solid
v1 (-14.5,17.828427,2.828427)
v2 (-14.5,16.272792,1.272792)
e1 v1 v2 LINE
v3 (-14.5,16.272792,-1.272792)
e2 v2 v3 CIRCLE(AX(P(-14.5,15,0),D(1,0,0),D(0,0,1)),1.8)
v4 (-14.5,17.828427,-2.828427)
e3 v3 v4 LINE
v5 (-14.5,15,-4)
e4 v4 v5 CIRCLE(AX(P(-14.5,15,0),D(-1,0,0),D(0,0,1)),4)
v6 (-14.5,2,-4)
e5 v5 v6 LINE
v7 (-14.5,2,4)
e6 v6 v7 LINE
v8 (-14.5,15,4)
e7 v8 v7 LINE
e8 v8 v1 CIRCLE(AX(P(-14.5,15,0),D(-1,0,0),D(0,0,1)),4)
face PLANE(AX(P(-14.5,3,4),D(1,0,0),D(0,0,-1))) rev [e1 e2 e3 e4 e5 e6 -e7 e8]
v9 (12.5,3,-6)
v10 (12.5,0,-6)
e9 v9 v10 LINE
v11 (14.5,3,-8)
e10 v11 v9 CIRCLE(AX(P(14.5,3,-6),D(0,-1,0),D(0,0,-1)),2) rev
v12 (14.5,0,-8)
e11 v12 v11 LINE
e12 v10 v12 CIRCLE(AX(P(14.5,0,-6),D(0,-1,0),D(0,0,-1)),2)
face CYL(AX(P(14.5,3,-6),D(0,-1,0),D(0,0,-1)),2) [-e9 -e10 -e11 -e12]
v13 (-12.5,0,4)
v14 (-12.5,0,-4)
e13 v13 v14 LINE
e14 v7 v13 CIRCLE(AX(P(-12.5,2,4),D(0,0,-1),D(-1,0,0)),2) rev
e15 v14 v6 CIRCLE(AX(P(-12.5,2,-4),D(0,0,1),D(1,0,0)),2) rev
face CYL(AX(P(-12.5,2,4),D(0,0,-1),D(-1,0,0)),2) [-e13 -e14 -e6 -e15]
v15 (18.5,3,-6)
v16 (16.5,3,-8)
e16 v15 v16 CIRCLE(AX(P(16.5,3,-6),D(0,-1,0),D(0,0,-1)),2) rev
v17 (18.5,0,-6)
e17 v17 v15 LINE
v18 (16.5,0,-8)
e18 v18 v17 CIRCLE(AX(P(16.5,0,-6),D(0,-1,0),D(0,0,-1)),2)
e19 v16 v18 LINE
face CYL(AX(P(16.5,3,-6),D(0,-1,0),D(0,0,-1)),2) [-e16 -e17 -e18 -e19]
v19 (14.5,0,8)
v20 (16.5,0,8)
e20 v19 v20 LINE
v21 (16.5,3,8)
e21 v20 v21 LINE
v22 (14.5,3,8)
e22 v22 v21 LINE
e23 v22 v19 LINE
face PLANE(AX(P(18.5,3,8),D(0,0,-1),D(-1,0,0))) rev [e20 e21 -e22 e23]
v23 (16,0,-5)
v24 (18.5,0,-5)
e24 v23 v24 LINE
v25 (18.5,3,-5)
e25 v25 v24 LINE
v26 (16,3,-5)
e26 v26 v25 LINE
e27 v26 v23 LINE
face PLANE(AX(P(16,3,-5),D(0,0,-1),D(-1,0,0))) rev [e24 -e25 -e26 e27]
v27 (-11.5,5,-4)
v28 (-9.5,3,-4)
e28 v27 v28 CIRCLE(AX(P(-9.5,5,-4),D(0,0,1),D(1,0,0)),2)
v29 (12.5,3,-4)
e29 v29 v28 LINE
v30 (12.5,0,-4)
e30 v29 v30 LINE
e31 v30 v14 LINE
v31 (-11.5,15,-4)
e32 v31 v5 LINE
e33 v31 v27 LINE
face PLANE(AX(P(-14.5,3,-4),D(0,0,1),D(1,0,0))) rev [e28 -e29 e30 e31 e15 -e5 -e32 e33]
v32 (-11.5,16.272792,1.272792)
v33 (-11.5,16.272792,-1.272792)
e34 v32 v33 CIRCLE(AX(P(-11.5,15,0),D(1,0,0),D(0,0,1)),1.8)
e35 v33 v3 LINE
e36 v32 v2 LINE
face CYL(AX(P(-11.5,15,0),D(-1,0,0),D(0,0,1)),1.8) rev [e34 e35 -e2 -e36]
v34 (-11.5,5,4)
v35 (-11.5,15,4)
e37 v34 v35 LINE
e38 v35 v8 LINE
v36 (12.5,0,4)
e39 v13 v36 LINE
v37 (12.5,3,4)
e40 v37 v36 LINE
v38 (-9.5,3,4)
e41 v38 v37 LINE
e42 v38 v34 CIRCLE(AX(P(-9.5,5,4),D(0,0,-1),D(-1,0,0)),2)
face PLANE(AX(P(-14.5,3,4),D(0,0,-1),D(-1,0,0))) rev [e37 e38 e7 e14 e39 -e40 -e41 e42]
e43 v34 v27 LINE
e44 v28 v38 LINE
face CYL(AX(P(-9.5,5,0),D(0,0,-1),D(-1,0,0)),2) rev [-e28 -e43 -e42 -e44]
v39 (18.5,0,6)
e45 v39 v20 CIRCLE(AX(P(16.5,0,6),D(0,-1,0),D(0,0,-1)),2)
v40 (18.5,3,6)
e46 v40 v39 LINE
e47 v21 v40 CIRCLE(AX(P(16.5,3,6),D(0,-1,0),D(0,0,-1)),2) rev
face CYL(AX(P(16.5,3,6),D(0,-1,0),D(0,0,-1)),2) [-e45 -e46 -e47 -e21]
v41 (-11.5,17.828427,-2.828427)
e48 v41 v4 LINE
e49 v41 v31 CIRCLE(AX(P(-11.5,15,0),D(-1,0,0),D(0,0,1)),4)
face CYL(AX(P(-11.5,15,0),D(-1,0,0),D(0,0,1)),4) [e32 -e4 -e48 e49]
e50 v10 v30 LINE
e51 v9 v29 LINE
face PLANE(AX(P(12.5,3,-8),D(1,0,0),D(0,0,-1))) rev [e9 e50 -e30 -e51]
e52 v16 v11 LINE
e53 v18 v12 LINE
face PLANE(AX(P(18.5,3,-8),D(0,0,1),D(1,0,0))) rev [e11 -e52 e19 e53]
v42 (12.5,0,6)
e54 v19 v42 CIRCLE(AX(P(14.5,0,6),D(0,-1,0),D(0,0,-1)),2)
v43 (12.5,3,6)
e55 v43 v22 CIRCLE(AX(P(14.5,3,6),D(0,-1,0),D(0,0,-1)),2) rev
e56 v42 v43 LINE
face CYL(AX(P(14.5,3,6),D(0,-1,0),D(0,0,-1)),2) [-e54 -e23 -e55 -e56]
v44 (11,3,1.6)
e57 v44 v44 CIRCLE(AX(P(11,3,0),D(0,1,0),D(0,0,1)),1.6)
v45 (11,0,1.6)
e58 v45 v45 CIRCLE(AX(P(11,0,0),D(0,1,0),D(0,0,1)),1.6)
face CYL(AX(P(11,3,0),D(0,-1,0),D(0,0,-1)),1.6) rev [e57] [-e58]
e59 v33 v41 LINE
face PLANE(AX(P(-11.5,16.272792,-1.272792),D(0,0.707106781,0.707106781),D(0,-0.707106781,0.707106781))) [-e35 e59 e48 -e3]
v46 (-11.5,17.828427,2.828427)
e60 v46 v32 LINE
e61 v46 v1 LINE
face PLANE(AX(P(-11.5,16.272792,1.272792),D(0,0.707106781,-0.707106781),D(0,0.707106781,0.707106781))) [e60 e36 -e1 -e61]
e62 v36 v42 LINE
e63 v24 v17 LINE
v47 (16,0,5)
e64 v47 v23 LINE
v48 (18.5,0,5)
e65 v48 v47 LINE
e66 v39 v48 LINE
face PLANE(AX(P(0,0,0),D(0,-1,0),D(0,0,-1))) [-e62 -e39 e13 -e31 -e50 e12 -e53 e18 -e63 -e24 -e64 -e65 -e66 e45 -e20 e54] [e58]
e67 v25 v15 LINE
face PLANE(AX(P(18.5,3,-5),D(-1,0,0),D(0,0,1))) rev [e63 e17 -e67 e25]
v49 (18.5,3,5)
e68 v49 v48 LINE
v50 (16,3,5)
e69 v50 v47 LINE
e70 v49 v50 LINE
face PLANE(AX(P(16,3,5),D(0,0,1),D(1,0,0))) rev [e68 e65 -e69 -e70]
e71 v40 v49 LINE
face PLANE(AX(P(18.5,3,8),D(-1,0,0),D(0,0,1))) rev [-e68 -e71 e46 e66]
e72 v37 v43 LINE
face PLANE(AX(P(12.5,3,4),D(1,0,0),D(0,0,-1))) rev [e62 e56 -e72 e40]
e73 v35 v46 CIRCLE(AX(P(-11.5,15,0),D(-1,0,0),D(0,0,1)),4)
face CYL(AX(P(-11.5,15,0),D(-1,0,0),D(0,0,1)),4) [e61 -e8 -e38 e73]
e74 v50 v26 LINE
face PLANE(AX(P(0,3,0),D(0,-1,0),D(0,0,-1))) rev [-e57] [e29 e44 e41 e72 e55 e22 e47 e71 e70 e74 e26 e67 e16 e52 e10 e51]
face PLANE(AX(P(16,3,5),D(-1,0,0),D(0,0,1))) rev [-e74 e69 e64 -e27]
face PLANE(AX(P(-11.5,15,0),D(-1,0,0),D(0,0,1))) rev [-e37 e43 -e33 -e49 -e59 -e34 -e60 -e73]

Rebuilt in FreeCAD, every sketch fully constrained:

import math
import FreeCAD as App
import Part
import Sketcher
Q = App.Units.Quantity


def edges_at(feature, points):
    """Names of the edges that pass closest to the given points."""
    edges = feature.Shape.Edges
    near = lambda p: min(range(len(edges)), key=lambda i: edges[i].distToShape(Part.Vertex(*p))[0])
    return sorted({f"Edge{near(p) + 1}" for p in points})

doc = App.newDocument("Part")
body = doc.addObject("PartDesign::Body", "Body")

# Sketch on XZ plane
sketch1 = body.newObject("Sketcher::SketchObject", "Sketch")
sketch1.AttachmentSupport = (doc.getObject("XZ_Plane"), [""])
sketch1.MapMode = "FlatFace"
sketch1.addGeometry([
    Part.LineSegment(App.Vector(-14.5, -4, 0), App.Vector(-14.5, 4, 0)),  # 0
    Part.LineSegment(App.Vector(-14.5, 4, 0), App.Vector(12.5, 4, 0)),  # 1
    Part.LineSegment(App.Vector(12.5, 4, 0), App.Vector(12.5, 8, 0)),  # 2
    Part.LineSegment(App.Vector(12.5, 8, 0), App.Vector(18.5, 8, 0)),  # 3
    Part.LineSegment(App.Vector(18.5, 8, 0), App.Vector(18.5, 5, 0)),  # 4
    Part.LineSegment(App.Vector(18.5, 5, 0), App.Vector(16, 5, 0)),  # 5
    Part.LineSegment(App.Vector(16, 5, 0), App.Vector(16, -5, 0)),  # 6
    Part.LineSegment(App.Vector(16, -5, 0), App.Vector(18.5, -5, 0)),  # 7
    Part.LineSegment(App.Vector(18.5, -5, 0), App.Vector(18.5, -8, 0)),  # 8
    Part.LineSegment(App.Vector(18.5, -8, 0), App.Vector(12.5, -8, 0)),  # 9
    Part.LineSegment(App.Vector(12.5, -8, 0), App.Vector(12.5, -4, 0)),  # 10
    Part.LineSegment(App.Vector(12.5, -4, 0), App.Vector(-14.5, -4, 0)),  # 11
    Part.Circle(App.Vector(11, 0, 0), App.Vector(0, 0, 1), 1.6),  # 12
], False)
sketch1.addConstraint([
    Sketcher.Constraint("Coincident", 0, 2, 1, 1),
    Sketcher.Constraint("Coincident", 1, 2, 2, 1),
    Sketcher.Constraint("Coincident", 2, 2, 3, 1),
    Sketcher.Constraint("Coincident", 3, 2, 4, 1),
    Sketcher.Constraint("Coincident", 4, 2, 5, 1),
    Sketcher.Constraint("Coincident", 5, 2, 6, 1),
    Sketcher.Constraint("Coincident", 6, 2, 7, 1),
    Sketcher.Constraint("Coincident", 7, 2, 8, 1),
    Sketcher.Constraint("Coincident", 8, 2, 9, 1),
    Sketcher.Constraint("Coincident", 9, 2, 10, 1),
    Sketcher.Constraint("Coincident", 10, 2, 11, 1),
    Sketcher.Constraint("Coincident", 11, 2, 0, 1),
    Sketcher.Constraint("Vertical", 0),
    Sketcher.Constraint("Horizontal", 1),
    Sketcher.Constraint("Vertical", 2),
    Sketcher.Constraint("Horizontal", 3),
    Sketcher.Constraint("Vertical", 4),
    Sketcher.Constraint("Horizontal", 5),
    Sketcher.Constraint("Vertical", 6),
    Sketcher.Constraint("Horizontal", 7),
    Sketcher.Constraint("Vertical", 8),
    Sketcher.Constraint("Horizontal", 9),
    Sketcher.Constraint("Vertical", 10),
    Sketcher.Constraint("Horizontal", 11),
    Sketcher.Constraint("Symmetric", 4, 2, 7, 2, -1),
    Sketcher.Constraint("Symmetric", 2, 2, 9, 2, -1),
    Sketcher.Constraint("PointOnObject", 12, 3, -1),
    Sketcher.Constraint("Equal", 2, 10),
    Sketcher.Constraint("Diameter", 12, Q("3.2 mm")),
    Sketcher.Constraint("DistanceX", 1, 1, 1, 2, Q("27 mm")),
    Sketcher.Constraint("DistanceX", 3, 1, 3, 2, Q("6 mm")),
    Sketcher.Constraint("DistanceY", 0, 1, 0, 2, Q("8 mm")),
    Sketcher.Constraint("DistanceY", 2, 1, 2, 2, Q("4 mm")),
    Sketcher.Constraint("DistanceY", 4, 2, 4, 1, Q("3 mm")),
    Sketcher.Constraint("DistanceX", 5, 2, 5, 1, Q("2.5 mm")),
    Sketcher.Constraint("DistanceX", -1, 1, 12, 3, Q("11 mm")),
    Sketcher.Constraint("DistanceX", -1, 1, 5, 2, Q("16 mm")),
])
pad1 = body.newObject("PartDesign::Pad", "Pad")
pad1.Profile = sketch1
pad1.Length = 3
pad1.Reversed = True

# Sketch on YZ plane
sketch2 = body.newObject("Sketcher::SketchObject", "Sketch001")
sketch2.AttachmentSupport = (doc.getObject("YZ_Plane"), [""])
sketch2.MapMode = "FlatFace"
sketch2.AttachmentOffset = App.Placement(App.Vector(0, 0, -14.5), App.Rotation())
sketch2.addGeometry([
    Part.LineSegment(App.Vector(15, -4, 0), App.Vector(3, -4, 0)),  # 0
    Part.LineSegment(App.Vector(3, -4, 0), App.Vector(3, 4, 0)),  # 1
    Part.LineSegment(App.Vector(3, 4, 0), App.Vector(15, 4, 0)),  # 2
    Part.ArcOfCircle(Part.Circle(App.Vector(15, 0, 0), App.Vector(0, 0, 1), 4), math.radians(45), math.radians(90)),  # 3
    Part.LineSegment(App.Vector(17.8, 2.8, 0), App.Vector(16.3, 1.3, 0)),  # 4
    Part.ArcOfCircle(Part.Circle(App.Vector(15, 0, 0), App.Vector(0, 0, 1), 1.8), math.radians(45), math.radians(315)),  # 5
    Part.LineSegment(App.Vector(16.3, -1.3, 0), App.Vector(17.8, -2.8, 0)),  # 6
    Part.ArcOfCircle(Part.Circle(App.Vector(15, 0, 0), App.Vector(0, 0, 1), 4), math.radians(-90), math.radians(-45)),  # 7
], False)
sketch2.addConstraint([
    Sketcher.Constraint("Coincident", 0, 2, 1, 1),
    Sketcher.Constraint("Coincident", 1, 2, 2, 1),
    Sketcher.Constraint("Tangent", 2, 2, 3, 2),
    Sketcher.Constraint("Coincident", 3, 1, 4, 1),
    Sketcher.Constraint("Coincident", 4, 2, 5, 1),
    Sketcher.Constraint("Coincident", 5, 2, 6, 1),
    Sketcher.Constraint("Coincident", 6, 2, 7, 2),
    Sketcher.Constraint("Tangent", 7, 1, 0, 1),
    Sketcher.Constraint("Horizontal", 0),
    Sketcher.Constraint("Vertical", 1),
    Sketcher.Constraint("Horizontal", 2),
    Sketcher.Constraint("Coincident", 5, 3, 3, 3),
    Sketcher.Constraint("Coincident", 7, 3, 3, 3),
    Sketcher.Constraint("Equal", 3, 7),
    Sketcher.Constraint("Symmetric", 4, 2, 5, 2, -1),
    Sketcher.Constraint("Perpendicular", 4, 6),
    Sketcher.Constraint("Vertical", 3, 1, 6, 2),
    Sketcher.Constraint("Radius", 3, Q("4 mm")),
    Sketcher.Constraint("Radius", 5, Q("1.8 mm")),
    Sketcher.Constraint("DistanceX", 0, 2, 0, 1, Q("12 mm")),
    Sketcher.Constraint("DistanceX", -1, 1, 3, 3, Q("15 mm")),
    Sketcher.Constraint("DistanceY", 5, 2, 3, 1, Q("4.101219 mm")),
])
pad2 = body.newObject("PartDesign::Pad", "Pad001")
pad2.Profile = sketch2
pad2.Length = 3
doc.recompute()

fillet = body.newObject("PartDesign::Fillet", "Fillet")
fillet.Base = (pad2, edges_at(pad2, [
    (12.5, 1.5, -8),
    (18.5, 1.5, -8),
    (18.5, 1.5, 8),
    (12.5, 1.5, 8),
]))
fillet.Radius = 2
doc.recompute()

fillet2 = body.newObject("PartDesign::Fillet", "Fillet001")
fillet2.Base = (fillet, edges_at(fillet, [(-14.5, 0, 0), (-11.5, 3, 0)]))
fillet2.Radius = 2

doc.recompute()
